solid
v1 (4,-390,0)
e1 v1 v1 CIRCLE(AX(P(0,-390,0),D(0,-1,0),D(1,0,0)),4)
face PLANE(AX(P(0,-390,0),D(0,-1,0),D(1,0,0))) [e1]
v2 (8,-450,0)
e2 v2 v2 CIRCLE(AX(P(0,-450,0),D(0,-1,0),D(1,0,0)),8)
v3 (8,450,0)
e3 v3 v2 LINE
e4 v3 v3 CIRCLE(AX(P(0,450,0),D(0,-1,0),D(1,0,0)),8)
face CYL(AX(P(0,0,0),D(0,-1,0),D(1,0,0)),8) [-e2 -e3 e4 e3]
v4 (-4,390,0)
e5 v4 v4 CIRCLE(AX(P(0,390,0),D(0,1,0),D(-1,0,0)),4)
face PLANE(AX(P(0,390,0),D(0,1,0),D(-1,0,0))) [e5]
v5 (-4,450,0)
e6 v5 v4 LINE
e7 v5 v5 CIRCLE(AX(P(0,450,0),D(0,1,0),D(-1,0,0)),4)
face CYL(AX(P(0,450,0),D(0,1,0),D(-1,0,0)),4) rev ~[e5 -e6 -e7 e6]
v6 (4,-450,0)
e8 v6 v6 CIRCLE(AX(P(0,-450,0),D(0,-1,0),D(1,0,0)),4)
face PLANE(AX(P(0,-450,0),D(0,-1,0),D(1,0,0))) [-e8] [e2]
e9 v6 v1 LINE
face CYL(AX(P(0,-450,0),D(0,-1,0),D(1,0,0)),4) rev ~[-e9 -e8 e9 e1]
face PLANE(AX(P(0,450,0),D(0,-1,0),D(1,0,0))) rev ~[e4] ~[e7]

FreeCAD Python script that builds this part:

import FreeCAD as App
import Part
import Sketcher
from FreeCAD import Vector

doc = App.newDocument("Part")
body = doc.addObject("PartDesign::Body", "Body")

# Sketch on XZ plane
sketch1 = body.newObject("Sketcher::SketchObject", "Sketch")
sketch1.AttachmentSupport = (doc.getObject("XZ_Plane"), [""])
sketch1.MapMode = "FlatFace"
sketch1.addGeometry(Part.Circle(Vector(0, 0, 0), Vector(0, 0, 1), 8), False)
sketch1.addConstraint(Sketcher.Constraint("Coincident", 0, 3, -1, 1))
sketch1.addConstraint(Sketcher.Constraint("Diameter", 0, 16.0))
pad1 = body.newObject("PartDesign::Pad", "Pad")
pad1.Profile = sketch1
pad1.Length = 900
pad1.Midplane = True

# Sketch on XZ plane
sketch2 = body.newObject("Sketcher::SketchObject", "Sketch001")
sketch2.AttachmentSupport = (doc.getObject("XZ_Plane"), [""])
sketch2.MapMode = "FlatFace"
sketch2.AttachmentOffset = App.Placement(Vector(0, 0, 450), App.Rotation())
sketch2.addGeometry(Part.Circle(Vector(0, 0, 0), Vector(0, 0, 1), 4), False)
sketch2.addConstraint(Sketcher.Constraint("Coincident", 0, 3, -1, 1))
sketch2.addConstraint(Sketcher.Constraint("Diameter", 0, 8.0))
pocket1 = body.newObject("PartDesign::Pocket", "Pocket")
pocket1.Profile = sketch2
pocket1.Length = 60

# Sketch on XZ plane
sketch3 = body.newObject("Sketcher::SketchObject", "Sketch002")
sketch3.AttachmentSupport = (doc.getObject("XZ_Plane"), [""])
sketch3.MapMode = "FlatFace"
sketch3.AttachmentOffset = App.Placement(Vector(0, 0, -450), App.Rotation())
sketch3.addGeometry(Part.Circle(Vector(0, 0, 0), Vector(0, 0, 1), 4), False)
sketch3.addConstraint(Sketcher.Constraint("Coincident", 0, 3, -1, 1))
sketch3.addConstraint(Sketcher.Constraint("Diameter", 0, 8.0))
pocket2 = body.newObject("PartDesign::Pocket", "Pocket001")
pocket2.Profile = sketch3
pocket2.Length = 60
pocket2.Reversed = True

doc.recompute()
